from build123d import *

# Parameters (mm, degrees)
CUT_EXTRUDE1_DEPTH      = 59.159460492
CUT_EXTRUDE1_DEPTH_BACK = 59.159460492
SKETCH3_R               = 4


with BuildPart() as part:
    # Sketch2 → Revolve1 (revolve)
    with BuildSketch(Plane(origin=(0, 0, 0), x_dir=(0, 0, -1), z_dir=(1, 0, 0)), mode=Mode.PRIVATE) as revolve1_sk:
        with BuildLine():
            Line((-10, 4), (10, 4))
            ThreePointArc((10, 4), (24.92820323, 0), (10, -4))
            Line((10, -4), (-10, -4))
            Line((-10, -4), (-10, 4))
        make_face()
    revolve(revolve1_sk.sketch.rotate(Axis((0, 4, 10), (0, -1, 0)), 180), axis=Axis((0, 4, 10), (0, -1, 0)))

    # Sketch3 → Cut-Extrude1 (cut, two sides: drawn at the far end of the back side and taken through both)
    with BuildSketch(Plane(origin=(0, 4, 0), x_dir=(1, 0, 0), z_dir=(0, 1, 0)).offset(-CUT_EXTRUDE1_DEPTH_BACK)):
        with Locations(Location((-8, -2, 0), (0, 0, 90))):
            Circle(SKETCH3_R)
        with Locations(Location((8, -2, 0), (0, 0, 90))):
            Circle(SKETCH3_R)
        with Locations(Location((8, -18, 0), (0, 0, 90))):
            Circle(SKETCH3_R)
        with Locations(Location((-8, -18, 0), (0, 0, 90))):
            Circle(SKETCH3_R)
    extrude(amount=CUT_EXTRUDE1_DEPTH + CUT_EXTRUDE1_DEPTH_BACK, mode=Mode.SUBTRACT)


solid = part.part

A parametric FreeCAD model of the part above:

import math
import FreeCAD as App
import Part
import Sketcher

V = App.Vector
Q = App.Units.Quantity

doc = App.newDocument("Part")
body = doc.addObject("PartDesign::Body", "Body")

# Sketch on YZ plane
sketch1 = doc.addObject("Sketcher::SketchObject", "Sketch")
body.addObject(sketch1)
sketch1.AttachmentSupport = (doc.YZ_Plane, [""])
sketch1.MapMode = "FlatFace"
sketch1.addGeometry([
    Part.LineSegment(V(4, -10, 0), V(4, 10, 0)),
    Part.LineSegment(V(4, 10, 0), V(-4, 10, 0)),
    Part.LineSegment(V(-4, 10, 0), V(-4, -10, 0)),
    Part.ArcOfCircle(Part.Circle(V(0, -16.928203, 0), V(0, 0, 1), 8), math.radians(120), math.radians(420)),
], False)
sketch1.addGeometry(Part.LineSegment(V(4, 10, 0), V(-4, 10, 0)), True)  # axis
sketch1.addConstraint([
    Sketcher.Constraint("Coincident", 0, 2, 1, 1),
    Sketcher.Constraint("Coincident", 1, 2, 2, 1),
    Sketcher.Constraint("Coincident", 2, 2, 3, 1),
    Sketcher.Constraint("Coincident", 3, 2, 0, 1),
    Sketcher.Constraint("Vertical", 0),
    Sketcher.Constraint("Horizontal", 1),
    Sketcher.Constraint("Vertical", 2),
    Sketcher.Constraint("Horizontal", 4),
    Sketcher.Constraint("Coincident", 4, 1, 0, 2),
    Sketcher.Constraint("Symmetric", 0, 2, 2, 2, -1, 1),
    Sketcher.Constraint("Symmetric", 3, 2, 4, 2, -1, 1),
    Sketcher.Constraint("Radius", 3, Q("8 mm")),
    Sketcher.Constraint("DistanceX", 1, 2, 1, 1, Q("8 mm")),
    Sketcher.Constraint("DistanceY", 0, 1, 0, 2, Q("20 mm")),
])
revolution = doc.addObject("PartDesign::Revolution", "Revolution")
body.addObject(revolution)
revolution.Profile = sketch1
revolution.ReferenceAxis = (sketch1, ["Axis0"])
revolution.Angle = 360

# Sketch on XZ plane
sketch2 = doc.addObject("Sketcher::SketchObject", "Sketch001")
body.addObject(sketch2)
sketch2.AttachmentSupport = (doc.XZ_Plane, [""])
sketch2.MapMode = "FlatFace"
sketch2.AttachmentOffset = App.Placement(V(0, 0, -4), App.Rotation())
sketch2.addGeometry([
    Part.Circle(V(-8, 2, 0), V(0, 0, 1), 4),
    Part.Circle(V(8, 2, 0), V(0, 0, 1), 4),
    Part.Circle(V(8, 18, 0), V(0, 0, 1), 4),
    Part.Circle(V(-8, 18, 0), V(0, 0, 1), 4),
], False)
sketch2.addConstraint([
    Sketcher.Constraint("Equal", 0, 1),
    Sketcher.Constraint("Equal", 1, 2),
    Sketcher.Constraint("Equal", 2, 3),
    Sketcher.Constraint("Symmetric", 0, 3, 1, 3, -2),
    Sketcher.Constraint("Symmetric", 2, 3, 3, 3, -2),
    Sketcher.Constraint("Vertical", 1, 3, 2, 3),
    Sketcher.Constraint("Diameter", 0, Q("8 mm")),
    Sketcher.Constraint("DistanceX", 0, 3, -1, 1, Q("8 mm")),
    Sketcher.Constraint("DistanceY", -1, 1, 0, 3, Q("2 mm")),
    Sketcher.Constraint("DistanceY", -1, 1, 2, 3, Q("18 mm")),
])
pocket1 = doc.addObject("PartDesign::Pocket", "Pocket")
body.addObject(pocket1)
pocket1.Profile = sketch2
pocket1.Type = "ThroughAll"
pocket1.Midplane = True

doc.recompute()
